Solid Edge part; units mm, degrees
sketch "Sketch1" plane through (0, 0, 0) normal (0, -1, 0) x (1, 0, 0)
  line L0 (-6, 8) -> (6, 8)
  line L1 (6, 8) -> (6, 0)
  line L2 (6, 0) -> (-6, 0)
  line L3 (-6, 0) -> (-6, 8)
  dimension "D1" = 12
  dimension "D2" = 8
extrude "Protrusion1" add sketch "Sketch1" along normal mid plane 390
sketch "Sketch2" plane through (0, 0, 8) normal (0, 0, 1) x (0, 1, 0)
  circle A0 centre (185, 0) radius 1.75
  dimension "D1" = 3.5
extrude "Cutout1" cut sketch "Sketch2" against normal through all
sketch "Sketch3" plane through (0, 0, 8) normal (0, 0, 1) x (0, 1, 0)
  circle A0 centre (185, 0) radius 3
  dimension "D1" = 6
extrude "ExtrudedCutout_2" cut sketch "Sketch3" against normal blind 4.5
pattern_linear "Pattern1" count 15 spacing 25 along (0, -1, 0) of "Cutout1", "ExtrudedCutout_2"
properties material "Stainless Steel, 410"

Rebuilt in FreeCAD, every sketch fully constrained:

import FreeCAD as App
import Part
import Sketcher
from FreeCAD import Vector

doc = App.newDocument("Part")
body = doc.addObject("PartDesign::Body", "Body")

sketch1 = body.newObject("Sketcher::SketchObject", "Sketch")
sketch1.AttachmentSupport = (doc.getObject("XZ_Plane"), [""])
sketch1.MapMode = "FlatFace"
sketch1.addGeometry(Part.LineSegment(Vector(6, 8, 0), Vector(-6, 8, 0)), False)
sketch1.addGeometry(Part.LineSegment(Vector(-6, 8, 0), Vector(-6, 0, 0)), False)
sketch1.addGeometry(Part.LineSegment(Vector(-6, 0, 0), Vector(6, 0, 0)), False)
sketch1.addGeometry(Part.LineSegment(Vector(6, 0, 0), Vector(6, 8, 0)), False)
sketch1.addConstraint(Sketcher.Constraint("Coincident", 0, 2, 1, 1))
sketch1.addConstraint(Sketcher.Constraint("Coincident", 1, 2, 2, 1))
sketch1.addConstraint(Sketcher.Constraint("Coincident", 2, 2, 3, 1))
sketch1.addConstraint(Sketcher.Constraint("Coincident", 3, 2, 0, 1))
sketch1.addConstraint(Sketcher.Constraint("Horizontal", 0))
sketch1.addConstraint(Sketcher.Constraint("Vertical", 1))
sketch1.addConstraint(Sketcher.Constraint("Horizontal", 2))
sketch1.addConstraint(Sketcher.Constraint("Vertical", 3))
sketch1.addConstraint(Sketcher.Constraint("Symmetric", 1, 2, 2, 2, -1, 1))
sketch1.addConstraint(Sketcher.Constraint("DistanceX", 0, 2, -1, 1, 6.0))
sketch1.addConstraint(Sketcher.Constraint("DistanceY", 1, 2, 1, 1, 8.0))
pad1 = body.newObject("PartDesign::Pad", "Pad")
pad1.Profile = sketch1
pad1.Length = 390
pad1.Midplane = True

sketch2 = body.newObject("Sketcher::SketchObject", "Sketch001")
sketch2.AttachmentSupport = (doc.getObject("XY_Plane"), [""])
sketch2.MapMode = "FlatFace"
sketch2.AttachmentOffset = App.Placement(Vector(0, 0, 8), App.Rotation())
sketch2.addGeometry(Part.Circle(Vector(0, 185, 0), Vector(0, 0, 1), 1.8), False)
sketch2.addConstraint(Sketcher.Constraint("PointOnObject", 0, 3, -2))
sketch2.addConstraint(Sketcher.Constraint("Diameter", 0, 3.5))
sketch2.addConstraint(Sketcher.Constraint("DistanceY", -1, 1, 0, 3, 185.0))
pocket1 = body.newObject("PartDesign::Pocket", "Pocket")
pocket1.Profile = sketch2
pocket1.Type = "ThroughAll"

sketch3 = body.newObject("Sketcher::SketchObject", "Sketch002")
sketch3.AttachmentSupport = (doc.getObject("XY_Plane"), [""])
sketch3.MapMode = "FlatFace"
sketch3.AttachmentOffset = App.Placement(Vector(0, 0, 8), App.Rotation())
sketch3.addGeometry(Part.Circle(Vector(0, 185, 0), Vector(0, 0, 1), 3), False)
sketch3.addConstraint(Sketcher.Constraint("PointOnObject", 0, 3, -2))
sketch3.addConstraint(Sketcher.Constraint("Diameter", 0, 6.0))
sketch3.addConstraint(Sketcher.Constraint("DistanceY", -1, 1, 0, 3, 185.0))
pocket2 = body.newObject("PartDesign::Pocket", "Pocket001")
pocket2.Profile = sketch3
pocket2.Length = 4.5
doc.recompute()

linearpattern = body.newObject("PartDesign::LinearPattern", "LinearPattern")
linearpattern.Originals = [pocket1, pocket2]
linearpattern.Direction = (doc.getObject("Y_Axis"), [""])
linearpattern.Mode = "offset"
linearpattern.Offset = 25
linearpattern.Occurrences = 15
linearpattern.Reversed = True
body.Tip = linearpattern

doc.recompute()
